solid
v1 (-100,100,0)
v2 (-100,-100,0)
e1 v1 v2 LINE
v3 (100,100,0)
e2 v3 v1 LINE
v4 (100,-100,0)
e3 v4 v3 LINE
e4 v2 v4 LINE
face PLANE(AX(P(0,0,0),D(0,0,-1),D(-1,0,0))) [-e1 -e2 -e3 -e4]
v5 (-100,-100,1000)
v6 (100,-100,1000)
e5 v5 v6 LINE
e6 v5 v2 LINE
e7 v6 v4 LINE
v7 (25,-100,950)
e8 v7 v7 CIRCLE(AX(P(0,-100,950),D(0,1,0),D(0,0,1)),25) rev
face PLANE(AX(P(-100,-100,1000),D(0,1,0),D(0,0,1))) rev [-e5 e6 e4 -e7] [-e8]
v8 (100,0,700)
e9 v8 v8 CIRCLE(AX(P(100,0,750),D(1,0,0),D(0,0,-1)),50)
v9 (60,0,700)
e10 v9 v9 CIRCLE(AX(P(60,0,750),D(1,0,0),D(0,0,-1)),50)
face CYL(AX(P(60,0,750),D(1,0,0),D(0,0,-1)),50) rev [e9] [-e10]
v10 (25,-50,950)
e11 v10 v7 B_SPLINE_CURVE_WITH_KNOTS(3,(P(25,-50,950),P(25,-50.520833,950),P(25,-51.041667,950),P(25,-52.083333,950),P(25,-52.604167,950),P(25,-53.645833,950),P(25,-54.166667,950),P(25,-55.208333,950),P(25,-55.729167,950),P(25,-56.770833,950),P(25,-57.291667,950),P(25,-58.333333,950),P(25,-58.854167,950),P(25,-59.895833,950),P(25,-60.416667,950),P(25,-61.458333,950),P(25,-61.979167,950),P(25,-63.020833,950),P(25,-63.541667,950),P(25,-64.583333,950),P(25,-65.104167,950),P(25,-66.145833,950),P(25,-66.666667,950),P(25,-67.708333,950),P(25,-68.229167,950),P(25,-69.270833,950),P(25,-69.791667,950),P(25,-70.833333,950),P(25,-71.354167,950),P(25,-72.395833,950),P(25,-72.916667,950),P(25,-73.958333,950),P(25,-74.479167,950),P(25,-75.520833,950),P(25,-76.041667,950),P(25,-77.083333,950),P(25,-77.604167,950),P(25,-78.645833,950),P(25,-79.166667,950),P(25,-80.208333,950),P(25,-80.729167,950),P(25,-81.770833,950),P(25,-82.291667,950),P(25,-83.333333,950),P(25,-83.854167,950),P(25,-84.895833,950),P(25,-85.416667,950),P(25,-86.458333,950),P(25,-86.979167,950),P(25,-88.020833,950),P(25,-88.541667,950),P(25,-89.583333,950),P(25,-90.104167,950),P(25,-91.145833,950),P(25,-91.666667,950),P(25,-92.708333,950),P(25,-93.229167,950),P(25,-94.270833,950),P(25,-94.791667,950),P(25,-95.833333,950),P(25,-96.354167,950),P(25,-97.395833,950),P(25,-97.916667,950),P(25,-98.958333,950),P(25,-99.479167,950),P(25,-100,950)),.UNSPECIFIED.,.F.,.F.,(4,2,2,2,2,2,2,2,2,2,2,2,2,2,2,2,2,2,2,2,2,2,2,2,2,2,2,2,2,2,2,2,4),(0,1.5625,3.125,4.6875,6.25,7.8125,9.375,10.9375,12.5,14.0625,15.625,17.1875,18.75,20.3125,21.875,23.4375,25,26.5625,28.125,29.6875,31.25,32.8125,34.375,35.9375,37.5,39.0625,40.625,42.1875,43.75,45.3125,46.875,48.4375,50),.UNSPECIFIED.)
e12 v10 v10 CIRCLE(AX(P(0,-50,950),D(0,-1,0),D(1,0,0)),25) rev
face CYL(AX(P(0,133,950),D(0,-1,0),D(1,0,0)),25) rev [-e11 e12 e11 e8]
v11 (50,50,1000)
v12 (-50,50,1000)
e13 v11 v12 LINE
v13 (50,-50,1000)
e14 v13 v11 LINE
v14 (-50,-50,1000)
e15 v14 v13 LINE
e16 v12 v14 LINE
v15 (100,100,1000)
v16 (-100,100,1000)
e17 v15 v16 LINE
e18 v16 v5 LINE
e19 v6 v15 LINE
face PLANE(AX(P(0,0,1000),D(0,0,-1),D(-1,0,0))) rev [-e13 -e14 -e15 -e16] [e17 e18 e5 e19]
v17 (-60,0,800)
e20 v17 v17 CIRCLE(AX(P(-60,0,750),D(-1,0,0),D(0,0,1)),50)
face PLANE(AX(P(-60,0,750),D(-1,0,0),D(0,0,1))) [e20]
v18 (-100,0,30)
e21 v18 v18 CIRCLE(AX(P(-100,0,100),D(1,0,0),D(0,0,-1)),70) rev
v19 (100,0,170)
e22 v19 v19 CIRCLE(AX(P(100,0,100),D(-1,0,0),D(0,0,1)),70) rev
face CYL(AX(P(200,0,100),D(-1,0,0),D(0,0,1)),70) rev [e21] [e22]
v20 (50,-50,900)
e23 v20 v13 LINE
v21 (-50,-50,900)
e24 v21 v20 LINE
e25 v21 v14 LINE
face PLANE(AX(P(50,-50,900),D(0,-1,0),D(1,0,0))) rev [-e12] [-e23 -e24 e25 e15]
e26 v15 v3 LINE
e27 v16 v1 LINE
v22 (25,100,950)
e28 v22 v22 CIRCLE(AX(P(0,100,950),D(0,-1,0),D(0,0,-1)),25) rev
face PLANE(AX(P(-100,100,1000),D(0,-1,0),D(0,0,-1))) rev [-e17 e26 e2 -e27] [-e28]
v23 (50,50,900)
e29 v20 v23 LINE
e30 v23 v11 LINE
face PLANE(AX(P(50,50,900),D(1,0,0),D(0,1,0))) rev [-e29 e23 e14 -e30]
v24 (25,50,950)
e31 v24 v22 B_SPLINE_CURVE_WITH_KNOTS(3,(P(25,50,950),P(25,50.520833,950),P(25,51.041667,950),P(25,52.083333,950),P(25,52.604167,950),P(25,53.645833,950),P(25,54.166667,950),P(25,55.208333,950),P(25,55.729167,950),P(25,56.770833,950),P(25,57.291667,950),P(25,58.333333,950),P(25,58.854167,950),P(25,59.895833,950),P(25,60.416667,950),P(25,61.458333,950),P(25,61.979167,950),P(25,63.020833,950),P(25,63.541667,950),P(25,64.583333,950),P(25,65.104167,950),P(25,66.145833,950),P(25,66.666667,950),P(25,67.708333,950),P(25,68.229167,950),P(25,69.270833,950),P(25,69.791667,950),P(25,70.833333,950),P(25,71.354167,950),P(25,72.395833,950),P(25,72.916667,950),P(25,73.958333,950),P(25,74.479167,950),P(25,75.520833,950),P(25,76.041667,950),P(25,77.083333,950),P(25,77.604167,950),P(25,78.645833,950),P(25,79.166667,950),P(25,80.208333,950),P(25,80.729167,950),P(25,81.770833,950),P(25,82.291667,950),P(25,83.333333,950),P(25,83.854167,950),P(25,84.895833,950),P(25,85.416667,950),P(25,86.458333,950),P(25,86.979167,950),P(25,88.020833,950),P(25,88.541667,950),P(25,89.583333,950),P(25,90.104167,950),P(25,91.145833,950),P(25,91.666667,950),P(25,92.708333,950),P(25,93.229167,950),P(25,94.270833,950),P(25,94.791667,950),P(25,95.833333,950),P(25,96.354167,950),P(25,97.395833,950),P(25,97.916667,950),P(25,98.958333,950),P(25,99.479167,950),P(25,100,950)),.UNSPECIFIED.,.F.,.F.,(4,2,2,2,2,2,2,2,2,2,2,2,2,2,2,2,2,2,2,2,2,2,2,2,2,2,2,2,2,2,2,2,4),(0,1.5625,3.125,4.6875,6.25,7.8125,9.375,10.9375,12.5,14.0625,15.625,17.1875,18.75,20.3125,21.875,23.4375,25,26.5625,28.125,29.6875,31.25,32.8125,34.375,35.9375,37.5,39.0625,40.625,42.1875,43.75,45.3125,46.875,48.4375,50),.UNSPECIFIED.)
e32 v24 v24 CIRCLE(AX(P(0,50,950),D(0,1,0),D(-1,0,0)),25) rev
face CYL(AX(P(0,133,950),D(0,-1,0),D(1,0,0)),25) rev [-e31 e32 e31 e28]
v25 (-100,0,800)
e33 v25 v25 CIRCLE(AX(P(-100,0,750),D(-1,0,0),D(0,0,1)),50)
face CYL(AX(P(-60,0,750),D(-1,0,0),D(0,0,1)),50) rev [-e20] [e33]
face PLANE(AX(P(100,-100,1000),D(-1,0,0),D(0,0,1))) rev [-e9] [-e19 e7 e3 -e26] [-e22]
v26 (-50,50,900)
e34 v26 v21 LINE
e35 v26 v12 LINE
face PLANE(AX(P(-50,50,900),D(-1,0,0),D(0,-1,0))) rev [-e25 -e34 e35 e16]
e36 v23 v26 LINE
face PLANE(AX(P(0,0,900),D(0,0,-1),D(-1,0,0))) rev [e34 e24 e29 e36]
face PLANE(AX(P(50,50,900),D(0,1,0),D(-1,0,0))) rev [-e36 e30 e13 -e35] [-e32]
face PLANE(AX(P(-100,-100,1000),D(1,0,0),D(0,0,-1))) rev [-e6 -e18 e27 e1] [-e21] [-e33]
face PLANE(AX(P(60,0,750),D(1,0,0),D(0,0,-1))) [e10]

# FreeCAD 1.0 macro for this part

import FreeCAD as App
import Part
import Sketcher
from FreeCAD import Vector


def add_polygon(sketch, points):
    """Adds a closed chain of lines whose ends are joined by coincident constraints."""
    first, n = sketch.GeometryCount, len(points)
    for a, b in zip(points, points[1:] + points[:1]):
        sketch.addGeometry(Part.LineSegment(App.Vector(*a, 0), App.Vector(*b, 0)), False)
    for i in range(n):
        sketch.addConstraint(Sketcher.Constraint("Coincident", first + i, 2, first + (i + 1) % n, 1))

doc = App.newDocument("Part")
params = doc.addObject("Spreadsheet::Sheet", "Params")
for row, (alias, value) in enumerate([
    ("sketch1_width", "200 mm"),
    ("pad1_length", "1000 mm"),
    ("sketch2_diameter", "140 mm"),
    ("sketch3_width", "100 mm"),
    ("pocket2_length", "100 mm"),
    ("sketch4_diameter", "50 mm"),
    ("sketch5_diameter", "100 mm"),
    ("pocket4_length", "40 mm"),
    ("sketch6_diameter", "100 mm"),
    ("pocket5_length", "40 mm"),
], start=1):
    params.set(f"A{row}", alias)
    params.set(f"B{row}", "=" + value)
    params.setAlias(f"B{row}", alias)

body = doc.addObject("PartDesign::Body", "Body")

# Sketch on XY plane
sketch1 = body.newObject("Sketcher::SketchObject", "Sketch")
sketch1.AttachmentSupport = (doc.getObject("XY_Plane"), [""])
sketch1.MapMode = "FlatFace"
add_polygon(sketch1, [(-100, 100), (-100, -100), (100, -100), (100, 100)])  # lines 0-3
sketch1.addConstraint([
    Sketcher.Constraint("Vertical", 0),
    Sketcher.Constraint("Horizontal", 1),
    Sketcher.Constraint("Vertical", 2),
    Sketcher.Constraint("Horizontal", 3),
    Sketcher.Constraint("Symmetric", 0, 2, 2, 2, -1, 1),
    Sketcher.Constraint("Equal", 3, 0),
    Sketcher.Constraint("DistanceX", 1, 1, 1, 2, 200.0),
])
sketch1.setExpression("Constraints[10]", "Params.sketch1_width")
pad1 = body.newObject("PartDesign::Pad", "Pad")
pad1.Profile = sketch1
pad1.setExpression("Length", "Params.pad1_length")

# Sketch on YZ plane
sketch2 = body.newObject("Sketcher::SketchObject", "Sketch001")
sketch2.AttachmentSupport = (doc.getObject("YZ_Plane"), [""])
sketch2.MapMode = "FlatFace"
sketch2.AttachmentOffset = App.Placement(Vector(0, 0, 100), App.Rotation())
sketch2.addGeometry(Part.Circle(Vector(0, 100, 0), Vector(0, 0, 1), 70), False)
sketch2.addConstraint([
    Sketcher.Constraint("PointOnObject", 0, 3, -2),
    Sketcher.Constraint("Diameter", 0, 140.0),
    Sketcher.Constraint("DistanceY", -1, 1, 0, 3, 100.0),
])
sketch2.setExpression("Constraints[1]", "Params.sketch2_diameter")
pocket1 = body.newObject("PartDesign::Pocket", "Pocket")
pocket1.Profile = sketch2
pocket1.Type = "ThroughAll"
pocket1.Midplane = True

# Sketch on XY plane
sketch3 = body.newObject("Sketcher::SketchObject", "Sketch002")
sketch3.AttachmentSupport = (doc.getObject("XY_Plane"), [""])
sketch3.MapMode = "FlatFace"
sketch3.AttachmentOffset = App.Placement(Vector(0, 0, 1000), App.Rotation())
add_polygon(sketch3, [(-50, 50), (-50, -50), (50, -50), (50, 50)])  # lines 0-3
sketch3.addConstraint([
    Sketcher.Constraint("Vertical", 0),
    Sketcher.Constraint("Horizontal", 1),
    Sketcher.Constraint("Vertical", 2),
    Sketcher.Constraint("Horizontal", 3),
    Sketcher.Constraint("Symmetric", 0, 2, 2, 2, -1, 1),
    Sketcher.Constraint("Equal", 3, 0),
    Sketcher.Constraint("DistanceX", 1, 1, 1, 2, 100.0),
])
sketch3.setExpression("Constraints[10]", "Params.sketch3_width")
pocket2 = body.newObject("PartDesign::Pocket", "Pocket001")
pocket2.Profile = sketch3
pocket2.setExpression("Length", "Params.pocket2_length")

# Sketch on XZ plane
sketch4 = body.newObject("Sketcher::SketchObject", "Sketch003")
sketch4.AttachmentSupport = (doc.getObject("XZ_Plane"), [""])
sketch4.MapMode = "FlatFace"
sketch4.AttachmentOffset = App.Placement(Vector(0, 0, 50), App.Rotation())
sketch4.addGeometry(Part.Circle(Vector(0, 950, 0), Vector(0, 0, 1), 25), False)
sketch4.addConstraint([
    Sketcher.Constraint("PointOnObject", 0, 3, -2),
    Sketcher.Constraint("Diameter", 0, 50.0),
    Sketcher.Constraint("DistanceY", -1, 1, 0, 3, 950.0),
])
sketch4.setExpression("Constraints[1]", "Params.sketch4_diameter")
pocket3 = body.newObject("PartDesign::Pocket", "Pocket002")
pocket3.Profile = sketch4
pocket3.Type = "ThroughAll"
pocket3.Midplane = True

# Sketch on YZ plane
sketch5 = body.newObject("Sketcher::SketchObject", "Sketch004")
sketch5.AttachmentSupport = (doc.getObject("YZ_Plane"), [""])
sketch5.MapMode = "FlatFace"
sketch5.AttachmentOffset = App.Placement(Vector(0, 0, 100), App.Rotation())
sketch5.addGeometry(Part.Circle(Vector(0, 750, 0), Vector(0, 0, 1), 50), False)
sketch5.addConstraint([
    Sketcher.Constraint("PointOnObject", 0, 3, -2),
    Sketcher.Constraint("Diameter", 0, 100.0),
    Sketcher.Constraint("DistanceY", -1, 1, 0, 3, 750.0),
])
sketch5.setExpression("Constraints[1]", "Params.sketch5_diameter")
pocket4 = body.newObject("PartDesign::Pocket", "Pocket003")
pocket4.Profile = sketch5
pocket4.setExpression("Length", "Params.pocket4_length")

# Sketch on YZ plane
sketch6 = body.newObject("Sketcher::SketchObject", "Sketch005")
sketch6.AttachmentSupport = (doc.getObject("YZ_Plane"), [""])
sketch6.MapMode = "FlatFace"
sketch6.AttachmentOffset = App.Placement(Vector(0, 0, -60), App.Rotation())
sketch6.addGeometry(Part.Circle(Vector(0, 750, 0), Vector(0, 0, 1), 50), False)
sketch6.addConstraint([
    Sketcher.Constraint("PointOnObject", 0, 3, -2),
    Sketcher.Constraint("Diameter", 0, 100.0),
    Sketcher.Constraint("DistanceY", -1, 1, 0, 3, 750.0),
])
sketch6.setExpression("Constraints[1]", "Params.sketch6_diameter")
pocket5 = body.newObject("PartDesign::Pocket", "Pocket004")
pocket5.Profile = sketch6
pocket5.setExpression("Length", "Params.pocket5_length")

doc.recompute()
